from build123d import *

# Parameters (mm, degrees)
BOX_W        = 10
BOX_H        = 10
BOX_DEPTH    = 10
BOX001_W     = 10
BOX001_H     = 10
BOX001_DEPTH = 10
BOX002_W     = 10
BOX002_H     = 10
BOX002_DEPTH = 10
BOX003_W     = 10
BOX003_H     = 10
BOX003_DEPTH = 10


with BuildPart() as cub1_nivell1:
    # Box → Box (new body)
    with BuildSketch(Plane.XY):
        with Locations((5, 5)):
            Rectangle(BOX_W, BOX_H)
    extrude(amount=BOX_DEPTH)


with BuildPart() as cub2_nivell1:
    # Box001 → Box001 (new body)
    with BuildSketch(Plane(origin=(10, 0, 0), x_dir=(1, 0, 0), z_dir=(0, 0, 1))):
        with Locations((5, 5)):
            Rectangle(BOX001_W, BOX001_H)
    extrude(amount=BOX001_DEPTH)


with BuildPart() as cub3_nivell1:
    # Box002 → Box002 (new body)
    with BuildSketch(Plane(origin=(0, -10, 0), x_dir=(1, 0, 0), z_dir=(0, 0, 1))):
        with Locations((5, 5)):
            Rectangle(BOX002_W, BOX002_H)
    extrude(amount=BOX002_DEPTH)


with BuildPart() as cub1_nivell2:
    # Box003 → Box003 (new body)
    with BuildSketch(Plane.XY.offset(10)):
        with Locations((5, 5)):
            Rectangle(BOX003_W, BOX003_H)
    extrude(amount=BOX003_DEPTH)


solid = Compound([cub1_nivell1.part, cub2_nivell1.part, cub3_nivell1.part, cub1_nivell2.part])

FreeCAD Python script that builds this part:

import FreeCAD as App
import Part
import Sketcher


def add_polygon(sketch, points):
    """Adds a closed chain of lines whose ends are joined by coincident constraints."""
    first, n = sketch.GeometryCount, len(points)
    for a, b in zip(points, points[1:] + points[:1]):
        sketch.addGeometry(Part.LineSegment(App.Vector(*a, 0), App.Vector(*b, 0)), False)
    for i in range(n):
        sketch.addConstraint(Sketcher.Constraint("Coincident", first + i, 2, first + (i + 1) % n, 1))

doc = App.newDocument("Part")
body = doc.addObject("PartDesign::Body", "Body")

sketch1 = doc.addObject("Sketcher::SketchObject", "Sketch")
body.addObject(sketch1)
sketch1.AttachmentSupport = (doc.XY_Plane, [""])
sketch1.MapMode = "FlatFace"
add_polygon(sketch1, [(0, 10), (0, 0), (10, 0), (10, 10)])
sketch1.addConstraint(Sketcher.Constraint("Vertical", 0))
sketch1.addConstraint(Sketcher.Constraint("Horizontal", 1))
sketch1.addConstraint(Sketcher.Constraint("Vertical", 2))
sketch1.addConstraint(Sketcher.Constraint("Horizontal", 3))
sketch1.addConstraint(Sketcher.Constraint("Coincident", 0, 2, -1, 1))
sketch1.addConstraint(Sketcher.Constraint("Equal", 3, 0))
sketch1.addConstraint(Sketcher.Constraint("DistanceX", 1, 1, 1, 2, 10.0))
pad1 = doc.addObject("PartDesign::Pad", "Pad")
body.addObject(pad1)
pad1.Profile = sketch1
pad1.Length = 10
body2 = doc.addObject("PartDesign::Body", "Body001")

sketch2 = doc.addObject("Sketcher::SketchObject", "Sketch001")
body2.addObject(sketch2)
sketch2.AttachmentSupport = (doc.getObject("XY_Plane001"), [""])
sketch2.MapMode = "FlatFace"
add_polygon(sketch2, [(10, 10), (10, 0), (20, 0), (20, 10)])
sketch2.addConstraint(Sketcher.Constraint("Vertical", 0))
sketch2.addConstraint(Sketcher.Constraint("Horizontal", 1))
sketch2.addConstraint(Sketcher.Constraint("Vertical", 2))
sketch2.addConstraint(Sketcher.Constraint("Horizontal", 3))
sketch2.addConstraint(Sketcher.Constraint("PointOnObject", 0, 2, -1))
sketch2.addConstraint(Sketcher.Constraint("Equal", 3, 0))
sketch2.addConstraint(Sketcher.Constraint("DistanceX", 1, 1, 1, 2, 10.0))
sketch2.addConstraint(Sketcher.Constraint("DistanceX", -1, 1, 0, 2, 10.0))
pad2 = doc.addObject("PartDesign::Pad", "Pad001")
body2.addObject(pad2)
pad2.Profile = sketch2
pad2.Length = 10
body3 = doc.addObject("PartDesign::Body", "Body002")

sketch3 = doc.addObject("Sketcher::SketchObject", "Sketch002")
body3.addObject(sketch3)
sketch3.AttachmentSupport = (doc.getObject("XY_Plane002"), [""])
sketch3.MapMode = "FlatFace"
add_polygon(sketch3, [(0, 0), (0, -10), (10, -10), (10, 0)])
sketch3.addConstraint(Sketcher.Constraint("Vertical", 0))
sketch3.addConstraint(Sketcher.Constraint("Horizontal", 1))
sketch3.addConstraint(Sketcher.Constraint("Vertical", 2))
sketch3.addConstraint(Sketcher.Constraint("Horizontal", 3))
sketch3.addConstraint(Sketcher.Constraint("Coincident", 3, 2, -1, 1))
sketch3.addConstraint(Sketcher.Constraint("Equal", 3, 0))
sketch3.addConstraint(Sketcher.Constraint("DistanceX", 1, 1, 1, 2, 10.0))
pad3 = doc.addObject("PartDesign::Pad", "Pad002")
body3.addObject(pad3)
pad3.Profile = sketch3
pad3.Length = 10
body4 = doc.addObject("PartDesign::Body", "Body003")

sketch4 = doc.addObject("Sketcher::SketchObject", "Sketch003")
body4.addObject(sketch4)
sketch4.AttachmentSupport = (doc.getObject("XY_Plane003"), [""])
sketch4.MapMode = "FlatFace"
sketch4.AttachmentOffset = App.Placement(App.Vector(0, 0, 10), App.Rotation())
add_polygon(sketch4, [(0, 10), (0, 0), (10, 0), (10, 10)])
sketch4.addConstraint(Sketcher.Constraint("Vertical", 0))
sketch4.addConstraint(Sketcher.Constraint("Horizontal", 1))
sketch4.addConstraint(Sketcher.Constraint("Vertical", 2))
sketch4.addConstraint(Sketcher.Constraint("Horizontal", 3))
sketch4.addConstraint(Sketcher.Constraint("Coincident", 0, 2, -1, 1))
sketch4.addConstraint(Sketcher.Constraint("Equal", 3, 0))
sketch4.addConstraint(Sketcher.Constraint("DistanceX", 1, 1, 1, 2, 10.0))
pad4 = doc.addObject("PartDesign::Pad", "Pad003")
body4.addObject(pad4)
pad4.Profile = sketch4
pad4.Length = 10

doc.recompute()
